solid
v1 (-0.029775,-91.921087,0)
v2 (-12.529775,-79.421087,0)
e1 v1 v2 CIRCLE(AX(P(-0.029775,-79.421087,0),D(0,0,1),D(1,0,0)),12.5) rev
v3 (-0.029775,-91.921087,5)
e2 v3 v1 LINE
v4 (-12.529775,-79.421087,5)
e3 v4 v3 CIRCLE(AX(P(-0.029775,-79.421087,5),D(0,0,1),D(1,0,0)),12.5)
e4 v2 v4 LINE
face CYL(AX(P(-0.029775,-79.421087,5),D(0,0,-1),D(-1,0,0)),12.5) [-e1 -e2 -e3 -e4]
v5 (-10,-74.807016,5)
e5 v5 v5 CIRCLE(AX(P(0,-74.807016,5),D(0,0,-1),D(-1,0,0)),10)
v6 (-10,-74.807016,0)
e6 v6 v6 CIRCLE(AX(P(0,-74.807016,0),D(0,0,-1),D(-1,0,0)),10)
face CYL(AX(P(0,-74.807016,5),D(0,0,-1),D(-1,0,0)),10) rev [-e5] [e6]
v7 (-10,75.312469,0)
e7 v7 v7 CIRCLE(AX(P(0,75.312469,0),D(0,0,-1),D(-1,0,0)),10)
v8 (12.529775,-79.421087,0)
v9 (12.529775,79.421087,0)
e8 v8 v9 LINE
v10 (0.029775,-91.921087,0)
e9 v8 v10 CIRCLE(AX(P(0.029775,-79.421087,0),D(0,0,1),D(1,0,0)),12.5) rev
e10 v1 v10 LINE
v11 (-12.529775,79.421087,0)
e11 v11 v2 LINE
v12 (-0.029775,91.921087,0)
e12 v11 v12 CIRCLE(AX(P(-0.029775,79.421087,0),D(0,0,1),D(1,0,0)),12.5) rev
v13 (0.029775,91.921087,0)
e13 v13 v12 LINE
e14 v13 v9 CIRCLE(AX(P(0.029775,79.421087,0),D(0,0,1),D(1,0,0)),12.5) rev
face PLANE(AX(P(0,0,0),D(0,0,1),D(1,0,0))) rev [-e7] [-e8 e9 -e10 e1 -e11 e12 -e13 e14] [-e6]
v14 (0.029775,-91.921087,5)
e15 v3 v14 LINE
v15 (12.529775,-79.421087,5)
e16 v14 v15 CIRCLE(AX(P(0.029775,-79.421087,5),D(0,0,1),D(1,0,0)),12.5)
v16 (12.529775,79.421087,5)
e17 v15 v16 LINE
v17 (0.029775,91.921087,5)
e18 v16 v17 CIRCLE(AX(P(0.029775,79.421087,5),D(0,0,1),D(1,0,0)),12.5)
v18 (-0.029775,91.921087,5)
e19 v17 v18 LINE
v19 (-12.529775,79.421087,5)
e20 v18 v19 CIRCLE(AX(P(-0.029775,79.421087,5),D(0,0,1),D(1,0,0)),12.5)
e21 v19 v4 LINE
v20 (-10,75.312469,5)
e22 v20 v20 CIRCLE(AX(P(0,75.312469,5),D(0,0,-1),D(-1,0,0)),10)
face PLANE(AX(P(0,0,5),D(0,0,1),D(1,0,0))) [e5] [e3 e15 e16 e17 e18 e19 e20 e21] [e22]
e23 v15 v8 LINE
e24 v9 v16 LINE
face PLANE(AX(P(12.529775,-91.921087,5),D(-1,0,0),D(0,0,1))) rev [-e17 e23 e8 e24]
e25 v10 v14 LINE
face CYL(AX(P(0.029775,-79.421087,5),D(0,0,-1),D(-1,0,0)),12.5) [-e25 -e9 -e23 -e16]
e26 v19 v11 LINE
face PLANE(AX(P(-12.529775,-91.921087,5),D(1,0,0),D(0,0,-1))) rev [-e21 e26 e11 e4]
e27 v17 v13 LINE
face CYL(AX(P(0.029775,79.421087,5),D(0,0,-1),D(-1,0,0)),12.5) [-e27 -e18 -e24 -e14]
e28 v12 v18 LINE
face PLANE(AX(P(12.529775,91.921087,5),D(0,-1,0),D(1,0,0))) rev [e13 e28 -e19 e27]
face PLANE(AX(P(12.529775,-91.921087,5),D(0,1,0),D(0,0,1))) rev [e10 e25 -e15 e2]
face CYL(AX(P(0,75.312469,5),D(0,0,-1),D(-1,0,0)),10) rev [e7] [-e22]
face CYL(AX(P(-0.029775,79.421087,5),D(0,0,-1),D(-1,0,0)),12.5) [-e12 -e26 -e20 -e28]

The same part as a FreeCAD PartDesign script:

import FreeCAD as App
import Part
import Sketcher
from FreeCAD import Vector
Q = App.Units.Quantity


def edges_at(feature, points):
    """Names of the edges that pass closest to the given points."""
    edges = feature.Shape.Edges
    near = lambda p: min(range(len(edges)), key=lambda i: edges[i].distToShape(Part.Vertex(*p))[0])
    return sorted({f"Edge{near(p) + 1}" for p in points})


def add_polygon(sketch, points):
    """Adds a closed chain of lines whose ends are joined by coincident constraints."""
    first, n = sketch.GeometryCount, len(points)
    for a, b in zip(points, points[1:] + points[:1]):
        sketch.addGeometry(Part.LineSegment(App.Vector(*a, 0), App.Vector(*b, 0)), False)
    for i in range(n):
        sketch.addConstraint(Sketcher.Constraint("Coincident", first + i, 2, first + (i + 1) % n, 1))

doc = App.newDocument("Part")
params = doc.addObject("Spreadsheet::Sheet", "Params")
for row, (alias, value) in enumerate([
    ("pad1_length", "5 mm"),
    ("sketch2_diameter", "20 mm"),
    ("pocket1_length", "5 mm"),
    ("fillet_radius", "12.5 mm"),
], start=1):
    params.set(f"A{row}", alias)
    params.set(f"B{row}", "=" + value)
    params.setAlias(f"B{row}", alias)

body = doc.addObject("PartDesign::Body", "Body")

sketch1 = body.newObject("Sketcher::SketchObject", "Sketch")
sketch1.AttachmentSupport = (doc.getObject("XY_Plane"), [""])
sketch1.MapMode = "FlatFace"
add_polygon(sketch1, [(-13, 92), (-13, -92), (13, -92), (13, 92)])
sketch1.addConstraint([
    Sketcher.Constraint("Vertical", 0),
    Sketcher.Constraint("Horizontal", 1),
    Sketcher.Constraint("Vertical", 2),
    Sketcher.Constraint("Horizontal", 3),
    Sketcher.Constraint("Symmetric", 0, 2, 2, 2, -1, 1),
    Sketcher.Constraint("DistanceX", 1, 1, 1, 2, Q("25.059551 mm")),
    Sketcher.Constraint("DistanceY", 0, 2, 0, 1, Q("183.842174 mm")),
])
pad1 = body.newObject("PartDesign::Pad", "Pad")
pad1.Profile = sketch1
pad1.setExpression("Length", "Params.pad1_length")

sketch2 = body.newObject("Sketcher::SketchObject", "Sketch001")
sketch2.AttachmentSupport = (doc.getObject("XY_Plane"), [""])
sketch2.MapMode = "FlatFace"
sketch2.addGeometry([
    Part.Circle(Vector(0, 75, 0), Vector(0, 0, 1), 10),
    Part.Circle(Vector(0, -75, 0), Vector(0, 0, 1), 10),
], False)
sketch2.addConstraint([
    Sketcher.Constraint("Equal", 0, 1),
    Sketcher.Constraint("PointOnObject", 0, 3, -2),
    Sketcher.Constraint("PointOnObject", 1, 3, -2),
    Sketcher.Constraint("Diameter", 0, Q("20 mm")),
    Sketcher.Constraint("DistanceY", -1, 1, 0, 3, Q("75.312469 mm")),
    Sketcher.Constraint("DistanceY", 1, 3, -1, 1, Q("74.807016 mm")),
])
sketch2.setExpression("Constraints[3]", "Params.sketch2_diameter")
pocket1 = body.newObject("PartDesign::Pocket", "Pocket")
pocket1.Profile = sketch2
pocket1.setExpression("Length", "Params.pocket1_length")
pocket1.Reversed = True
doc.recompute()

fillet = body.newObject("PartDesign::Fillet", "Fillet")
fillet.Base = (pocket1, edges_at(pocket1, [
    (-12.53, 91.921, 2.5),
    (12.53, 91.921, 2.5),
    (12.53, -91.921, 2.5),
    (-12.53, -91.921, 2.5),
]))
fillet.setExpression("Radius", "Params.fillet_radius")

doc.recompute()
